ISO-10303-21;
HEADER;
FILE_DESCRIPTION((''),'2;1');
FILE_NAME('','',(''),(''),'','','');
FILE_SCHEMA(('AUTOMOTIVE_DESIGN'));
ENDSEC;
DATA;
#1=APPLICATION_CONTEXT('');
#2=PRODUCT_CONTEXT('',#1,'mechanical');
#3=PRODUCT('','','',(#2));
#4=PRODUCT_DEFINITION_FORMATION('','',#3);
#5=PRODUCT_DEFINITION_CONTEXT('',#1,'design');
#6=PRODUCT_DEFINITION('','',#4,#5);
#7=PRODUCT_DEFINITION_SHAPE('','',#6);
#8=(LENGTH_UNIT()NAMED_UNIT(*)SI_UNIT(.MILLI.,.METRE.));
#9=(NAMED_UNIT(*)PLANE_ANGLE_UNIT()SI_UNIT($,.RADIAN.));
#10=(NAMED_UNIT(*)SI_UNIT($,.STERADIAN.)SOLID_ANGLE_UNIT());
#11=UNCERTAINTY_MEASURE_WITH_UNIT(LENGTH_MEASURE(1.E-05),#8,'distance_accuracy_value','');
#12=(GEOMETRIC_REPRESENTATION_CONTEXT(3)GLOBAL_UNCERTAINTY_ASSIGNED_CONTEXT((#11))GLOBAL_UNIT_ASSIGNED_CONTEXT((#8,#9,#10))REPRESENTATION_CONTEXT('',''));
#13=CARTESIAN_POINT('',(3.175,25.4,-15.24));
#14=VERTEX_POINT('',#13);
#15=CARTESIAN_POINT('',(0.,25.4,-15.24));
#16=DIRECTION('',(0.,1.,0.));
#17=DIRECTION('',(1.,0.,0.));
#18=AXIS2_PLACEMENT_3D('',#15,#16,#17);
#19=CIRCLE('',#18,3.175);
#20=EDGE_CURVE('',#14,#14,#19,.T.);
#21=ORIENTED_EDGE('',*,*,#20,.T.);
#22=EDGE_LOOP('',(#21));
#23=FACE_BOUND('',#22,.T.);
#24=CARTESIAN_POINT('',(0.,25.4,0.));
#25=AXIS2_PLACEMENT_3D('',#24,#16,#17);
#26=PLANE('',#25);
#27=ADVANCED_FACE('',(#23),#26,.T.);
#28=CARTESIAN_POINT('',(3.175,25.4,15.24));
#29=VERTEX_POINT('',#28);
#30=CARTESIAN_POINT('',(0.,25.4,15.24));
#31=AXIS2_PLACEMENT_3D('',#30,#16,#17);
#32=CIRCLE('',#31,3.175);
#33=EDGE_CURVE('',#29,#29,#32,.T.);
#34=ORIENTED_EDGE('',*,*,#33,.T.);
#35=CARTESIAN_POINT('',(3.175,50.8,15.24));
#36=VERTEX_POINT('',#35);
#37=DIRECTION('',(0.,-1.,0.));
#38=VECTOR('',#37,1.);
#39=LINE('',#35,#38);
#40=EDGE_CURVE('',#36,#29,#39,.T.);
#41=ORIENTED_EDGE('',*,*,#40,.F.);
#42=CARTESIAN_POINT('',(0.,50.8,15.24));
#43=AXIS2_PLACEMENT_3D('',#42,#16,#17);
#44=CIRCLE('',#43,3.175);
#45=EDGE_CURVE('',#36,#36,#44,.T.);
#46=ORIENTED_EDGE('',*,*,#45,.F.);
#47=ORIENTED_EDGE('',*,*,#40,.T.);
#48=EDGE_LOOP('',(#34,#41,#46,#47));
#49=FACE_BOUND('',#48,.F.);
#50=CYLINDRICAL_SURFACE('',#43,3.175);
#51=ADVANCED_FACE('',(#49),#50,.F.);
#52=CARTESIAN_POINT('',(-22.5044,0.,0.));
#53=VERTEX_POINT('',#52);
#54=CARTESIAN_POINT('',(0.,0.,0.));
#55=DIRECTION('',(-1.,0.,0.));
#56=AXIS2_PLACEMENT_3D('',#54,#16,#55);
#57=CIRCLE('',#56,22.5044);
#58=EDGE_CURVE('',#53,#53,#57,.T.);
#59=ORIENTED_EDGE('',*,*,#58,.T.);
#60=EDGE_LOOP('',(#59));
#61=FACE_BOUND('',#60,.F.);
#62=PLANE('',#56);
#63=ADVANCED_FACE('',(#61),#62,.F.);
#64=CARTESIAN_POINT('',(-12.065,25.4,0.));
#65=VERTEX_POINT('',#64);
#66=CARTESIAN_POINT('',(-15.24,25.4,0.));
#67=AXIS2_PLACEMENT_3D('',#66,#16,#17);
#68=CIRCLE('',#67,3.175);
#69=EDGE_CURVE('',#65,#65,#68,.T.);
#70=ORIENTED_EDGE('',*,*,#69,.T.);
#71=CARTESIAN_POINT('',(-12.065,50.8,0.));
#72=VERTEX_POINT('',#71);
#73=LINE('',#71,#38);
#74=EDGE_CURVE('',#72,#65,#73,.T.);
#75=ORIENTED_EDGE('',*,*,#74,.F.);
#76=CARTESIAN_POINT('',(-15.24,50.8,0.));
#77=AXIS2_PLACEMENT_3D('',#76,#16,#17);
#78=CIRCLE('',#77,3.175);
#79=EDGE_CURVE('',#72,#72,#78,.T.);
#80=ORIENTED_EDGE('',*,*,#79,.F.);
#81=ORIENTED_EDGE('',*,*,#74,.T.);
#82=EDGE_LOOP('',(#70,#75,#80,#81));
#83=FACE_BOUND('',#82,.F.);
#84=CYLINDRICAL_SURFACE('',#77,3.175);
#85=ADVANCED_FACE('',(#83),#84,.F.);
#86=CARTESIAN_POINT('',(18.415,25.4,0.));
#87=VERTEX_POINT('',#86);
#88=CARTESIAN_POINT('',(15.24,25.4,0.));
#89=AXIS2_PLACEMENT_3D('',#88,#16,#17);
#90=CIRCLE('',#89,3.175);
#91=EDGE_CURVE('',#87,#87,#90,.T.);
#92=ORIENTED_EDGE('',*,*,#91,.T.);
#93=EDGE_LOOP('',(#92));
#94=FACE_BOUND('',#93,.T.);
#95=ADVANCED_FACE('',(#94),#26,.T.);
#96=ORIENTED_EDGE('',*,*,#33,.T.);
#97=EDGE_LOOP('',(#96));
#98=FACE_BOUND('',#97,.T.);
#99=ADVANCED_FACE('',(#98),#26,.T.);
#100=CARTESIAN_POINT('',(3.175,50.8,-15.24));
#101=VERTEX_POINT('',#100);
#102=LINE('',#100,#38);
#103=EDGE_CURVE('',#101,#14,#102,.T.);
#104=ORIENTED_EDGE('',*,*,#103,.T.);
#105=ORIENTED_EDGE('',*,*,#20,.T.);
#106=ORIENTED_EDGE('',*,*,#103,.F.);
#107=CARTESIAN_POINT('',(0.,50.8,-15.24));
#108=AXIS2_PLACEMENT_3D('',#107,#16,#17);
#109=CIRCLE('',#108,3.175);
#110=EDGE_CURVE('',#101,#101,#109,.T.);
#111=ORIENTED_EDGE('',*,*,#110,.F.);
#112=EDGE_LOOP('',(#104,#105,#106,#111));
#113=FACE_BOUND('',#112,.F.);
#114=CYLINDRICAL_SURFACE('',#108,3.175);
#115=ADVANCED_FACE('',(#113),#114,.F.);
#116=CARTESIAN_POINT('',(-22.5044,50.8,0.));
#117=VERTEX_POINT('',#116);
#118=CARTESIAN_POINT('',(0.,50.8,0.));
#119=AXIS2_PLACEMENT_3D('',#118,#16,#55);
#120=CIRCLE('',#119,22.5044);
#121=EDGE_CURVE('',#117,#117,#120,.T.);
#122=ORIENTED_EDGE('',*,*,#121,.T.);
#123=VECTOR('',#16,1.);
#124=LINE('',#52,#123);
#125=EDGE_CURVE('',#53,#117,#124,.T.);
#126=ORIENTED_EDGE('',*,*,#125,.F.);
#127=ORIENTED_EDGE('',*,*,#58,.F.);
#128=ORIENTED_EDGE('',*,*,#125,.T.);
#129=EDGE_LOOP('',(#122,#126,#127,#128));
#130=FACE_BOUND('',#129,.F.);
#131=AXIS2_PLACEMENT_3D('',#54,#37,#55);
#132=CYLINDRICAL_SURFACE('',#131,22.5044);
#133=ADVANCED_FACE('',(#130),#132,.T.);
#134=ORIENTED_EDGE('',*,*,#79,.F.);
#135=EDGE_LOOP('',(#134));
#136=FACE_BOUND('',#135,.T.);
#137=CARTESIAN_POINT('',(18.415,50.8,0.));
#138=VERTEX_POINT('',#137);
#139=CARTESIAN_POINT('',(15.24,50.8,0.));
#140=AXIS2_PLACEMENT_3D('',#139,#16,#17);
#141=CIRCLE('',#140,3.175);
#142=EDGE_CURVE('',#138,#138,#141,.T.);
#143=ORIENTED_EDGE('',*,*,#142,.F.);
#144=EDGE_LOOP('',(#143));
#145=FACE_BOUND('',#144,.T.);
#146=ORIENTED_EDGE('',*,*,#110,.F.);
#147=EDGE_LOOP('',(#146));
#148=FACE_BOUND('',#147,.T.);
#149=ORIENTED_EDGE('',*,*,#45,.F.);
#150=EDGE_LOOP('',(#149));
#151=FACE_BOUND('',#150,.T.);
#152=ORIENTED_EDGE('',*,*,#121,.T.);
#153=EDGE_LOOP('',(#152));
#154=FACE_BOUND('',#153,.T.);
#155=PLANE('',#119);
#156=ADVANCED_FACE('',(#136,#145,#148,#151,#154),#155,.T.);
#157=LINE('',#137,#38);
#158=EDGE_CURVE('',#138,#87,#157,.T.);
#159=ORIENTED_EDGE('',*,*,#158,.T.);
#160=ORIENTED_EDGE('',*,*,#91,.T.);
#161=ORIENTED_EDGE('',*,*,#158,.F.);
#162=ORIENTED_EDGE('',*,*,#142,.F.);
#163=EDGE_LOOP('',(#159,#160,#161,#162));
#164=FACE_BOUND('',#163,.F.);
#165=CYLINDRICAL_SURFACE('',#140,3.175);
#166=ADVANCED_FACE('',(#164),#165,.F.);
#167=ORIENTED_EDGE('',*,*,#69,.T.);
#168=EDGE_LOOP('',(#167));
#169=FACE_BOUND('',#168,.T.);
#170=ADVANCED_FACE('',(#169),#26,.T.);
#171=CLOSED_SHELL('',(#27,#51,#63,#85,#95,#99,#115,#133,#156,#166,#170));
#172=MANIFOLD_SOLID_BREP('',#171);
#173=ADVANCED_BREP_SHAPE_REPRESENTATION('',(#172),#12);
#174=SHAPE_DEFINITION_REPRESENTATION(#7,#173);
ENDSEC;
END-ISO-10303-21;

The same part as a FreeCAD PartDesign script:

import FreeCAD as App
import Part
import Sketcher
Q = App.Units.Quantity

doc = App.newDocument("Part")
body = doc.addObject("PartDesign::Body", "Body")

# Sketch on XZ plane
sketch1 = body.newObject("Sketcher::SketchObject", "Sketch")
sketch1.AttachmentSupport = (doc.getObject("XZ_Plane"), [""])
sketch1.MapMode = "FlatFace"
sketch1.addGeometry(Part.Circle(App.Vector(0, 0, 0), App.Vector(0, 0, 1), 23), False)
sketch1.addConstraint(Sketcher.Constraint("Coincident", 0, 3, -1, 1))
sketch1.addConstraint(Sketcher.Constraint("Diameter", 0, Q("1.772 in")))
pad1 = body.newObject("PartDesign::Pad", "Pad")
pad1.Profile = sketch1
pad1.Length = Q("2 in")
pad1.Reversed = True

# Sketch on XZ plane
sketch2 = body.newObject("Sketcher::SketchObject", "Sketch001")
sketch2.AttachmentSupport = (doc.getObject("XZ_Plane"), [""])
sketch2.MapMode = "FlatFace"
sketch2.AttachmentOffset = App.Placement(App.Vector(0, 0, -2 * 25.4), App.Rotation())
sketch2.addGeometry(Part.Circle(App.Vector(15.2, 0, 0), App.Vector(0, 0, 1), 3.2), False)
sketch2.addGeometry(Part.Circle(App.Vector(0, -15.2, 0), App.Vector(0, 0, 1), 3.2), False)
sketch2.addGeometry(Part.Circle(App.Vector(-15.2, 0, 0), App.Vector(0, 0, 1), 3.2), False)
sketch2.addGeometry(Part.Circle(App.Vector(0, 15.2, 0), App.Vector(0, 0, 1), 3.2), False)
sketch2.addConstraint(Sketcher.Constraint("Equal", 0, 1))
sketch2.addConstraint(Sketcher.Constraint("Equal", 1, 2))
sketch2.addConstraint(Sketcher.Constraint("Equal", 2, 3))
sketch2.addConstraint(Sketcher.Constraint("Symmetric", 0, 3, 2, 3, -1, 1))
sketch2.addConstraint(Sketcher.Constraint("Symmetric", 1, 3, 3, 3, -1, 1))
sketch2.addConstraint(Sketcher.Constraint("PointOnObject", 0, 3, -1))
sketch2.addConstraint(Sketcher.Constraint("PointOnObject", 1, 3, -2))
sketch2.addConstraint(Sketcher.Constraint("Diameter", 0, Q("0.25 in")))
sketch2.addConstraint(Sketcher.Constraint("DistanceX", -1, 1, 0, 3, Q("0.6 in")))
sketch2.addConstraint(Sketcher.Constraint("DistanceY", 1, 3, -1, 1, Q("0.6 in")))
pocket1 = body.newObject("PartDesign::Pocket", "Pocket")
pocket1.Profile = sketch2
pocket1.Length = Q("1 in")
pocket1.Reversed = True

doc.recompute()
